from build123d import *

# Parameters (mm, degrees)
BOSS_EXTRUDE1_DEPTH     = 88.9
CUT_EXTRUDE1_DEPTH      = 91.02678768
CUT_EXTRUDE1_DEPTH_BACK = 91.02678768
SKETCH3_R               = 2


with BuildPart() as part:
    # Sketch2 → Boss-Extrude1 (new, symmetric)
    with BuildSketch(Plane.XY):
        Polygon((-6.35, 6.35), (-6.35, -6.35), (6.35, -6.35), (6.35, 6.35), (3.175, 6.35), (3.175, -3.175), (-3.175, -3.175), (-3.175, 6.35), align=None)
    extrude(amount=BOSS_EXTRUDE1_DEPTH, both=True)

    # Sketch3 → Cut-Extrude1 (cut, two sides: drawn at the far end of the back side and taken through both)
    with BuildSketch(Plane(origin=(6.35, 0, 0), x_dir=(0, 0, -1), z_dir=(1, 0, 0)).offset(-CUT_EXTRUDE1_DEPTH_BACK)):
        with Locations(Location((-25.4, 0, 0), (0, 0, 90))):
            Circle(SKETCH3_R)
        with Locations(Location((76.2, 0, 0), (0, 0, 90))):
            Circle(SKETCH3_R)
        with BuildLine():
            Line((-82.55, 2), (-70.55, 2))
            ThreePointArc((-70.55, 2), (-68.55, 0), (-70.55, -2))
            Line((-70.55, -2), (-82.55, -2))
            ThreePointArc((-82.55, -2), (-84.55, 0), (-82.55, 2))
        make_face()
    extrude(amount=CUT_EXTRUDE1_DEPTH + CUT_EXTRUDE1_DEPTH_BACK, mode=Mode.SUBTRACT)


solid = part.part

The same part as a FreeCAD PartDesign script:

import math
import FreeCAD as App
import Part
import Sketcher
Q = App.Units.Quantity


def add_polygon(sketch, points):
    """Adds a closed chain of lines whose ends are joined by coincident constraints."""
    first, n = sketch.GeometryCount, len(points)
    for a, b in zip(points, points[1:] + points[:1]):
        sketch.addGeometry(Part.LineSegment(App.Vector(*a, 0), App.Vector(*b, 0)), False)
    for i in range(n):
        sketch.addConstraint(Sketcher.Constraint("Coincident", first + i, 2, first + (i + 1) % n, 1))

doc = App.newDocument("Part")
params = doc.addObject("Spreadsheet::Sheet", "Params")
for row, (alias, value) in enumerate([
    ("sketch1_width", "0.5 in"),
    ("sketch1_width2", "0.25 in"),
    ("sketch1_height", "0.375 in"),
    ("pad1_length", "7 in"),
], start=1):
    params.set(f"A{row}", alias)
    params.set(f"B{row}", "=" + value)
    params.setAlias(f"B{row}", alias)

body = doc.addObject("PartDesign::Body", "Body")

# Sketch on XY plane
sketch1 = body.newObject("Sketcher::SketchObject", "Sketch")
sketch1.AttachmentSupport = (doc.getObject("XY_Plane"), [""])
sketch1.MapMode = "FlatFace"
add_polygon(sketch1, [(-6.35, 6.35), (-6.35, -6.35), (6.35, -6.35), (6.35, 6.35), (3.175, 6.35), (3.175, -3.175), (-3.175, -3.175), (-3.175, 6.35)])  # lines 0-7
sketch1.addConstraint(Sketcher.Constraint("Vertical", 0))
sketch1.addConstraint(Sketcher.Constraint("Horizontal", 1))
sketch1.addConstraint(Sketcher.Constraint("Vertical", 2))
sketch1.addConstraint(Sketcher.Constraint("Horizontal", 3))
sketch1.addConstraint(Sketcher.Constraint("Vertical", 4))
sketch1.addConstraint(Sketcher.Constraint("Horizontal", 5))
sketch1.addConstraint(Sketcher.Constraint("Vertical", 6))
sketch1.addConstraint(Sketcher.Constraint("Horizontal", 7))
sketch1.addConstraint(Sketcher.Constraint("Symmetric", 0, 2, 2, 2, -1, 1))
sketch1.addConstraint(Sketcher.Constraint("Symmetric", 3, 2, 6, 2, -2))
sketch1.addConstraint(Sketcher.Constraint("Equal", 1, 0))
sketch1.addConstraint(Sketcher.Constraint("DistanceX", 1, 1, 1, 2, Q("0.5 in")))
sketch1.addConstraint(Sketcher.Constraint("DistanceX", 5, 2, 5, 1, Q("0.25 in")))
sketch1.addConstraint(Sketcher.Constraint("DistanceY", 4, 2, 4, 1, Q("0.375 in")))
sketch1.setExpression("Constraints[19]", "Params.sketch1_width")
sketch1.setExpression("Constraints[20]", "Params.sketch1_width2")
sketch1.setExpression("Constraints[21]", "Params.sketch1_height")
pad1 = body.newObject("PartDesign::Pad", "Pad")
pad1.Profile = sketch1
pad1.setExpression("Length", "Params.pad1_length")
pad1.Midplane = True

# Sketch on YZ plane
sketch2 = body.newObject("Sketcher::SketchObject", "Sketch001")
sketch2.AttachmentSupport = (doc.getObject("YZ_Plane"), [""])
sketch2.MapMode = "FlatFace"
sketch2.AttachmentOffset = App.Placement(App.Vector(0, 0, 0.25 * 25.4), App.Rotation())
sketch2.addGeometry(Part.Circle(App.Vector(0, 25.4, 0), App.Vector(0, 0, 1), 2), False)
sketch2.addGeometry(Part.Circle(App.Vector(0, -76.2, 0), App.Vector(0, 0, 1), 2), False)
sketch2.addGeometry(Part.LineSegment(App.Vector(2, 70.55, 0), App.Vector(2, 82.55, 0)), False)
sketch2.addGeometry(Part.ArcOfCircle(Part.Circle(App.Vector(0, 82.55, 0), App.Vector(0, 0, 1), 2), math.radians(0), math.radians(180)), False)
sketch2.addGeometry(Part.LineSegment(App.Vector(-2, 82.55, 0), App.Vector(-2, 70.55, 0)), False)
sketch2.addGeometry(Part.ArcOfCircle(Part.Circle(App.Vector(0, 70.55, 0), App.Vector(0, 0, 1), 2), math.radians(180), math.radians(360)), False)
sketch2.addConstraint(Sketcher.Constraint("Tangent", 2, 2, 3, 1))
sketch2.addConstraint(Sketcher.Constraint("Tangent", 3, 2, 4, 1))
sketch2.addConstraint(Sketcher.Constraint("Tangent", 4, 2, 5, 1))
sketch2.addConstraint(Sketcher.Constraint("Tangent", 5, 2, 2, 1))
sketch2.addConstraint(Sketcher.Constraint("Vertical", 2))
sketch2.addConstraint(Sketcher.Constraint("Vertical", 4))
sketch2.addConstraint(Sketcher.Constraint("Equal", 0, 1))
sketch2.addConstraint(Sketcher.Constraint("Equal", 1, 3))
sketch2.addConstraint(Sketcher.Constraint("PointOnObject", 0, 3, -2))
sketch2.addConstraint(Sketcher.Constraint("PointOnObject", 1, 3, -2))
sketch2.addConstraint(Sketcher.Constraint("PointOnObject", 3, 3, -2))
sketch2.addConstraint(Sketcher.Constraint("DistanceY", -1, 1, 0, 3, Q("1 in")))
sketch2.addConstraint(Sketcher.Constraint("DistanceY", 1, 3, -1, 1, Q("3 in")))
sketch2.addConstraint(Sketcher.Constraint("Diameter", 0, 4.0))
sketch2.addConstraint(Sketcher.Constraint("DistanceY", -1, 1, 3, 3, Q("3.25 in")))
sketch2.addConstraint(Sketcher.Constraint("DistanceY", 2, 1, 2, 2, 12.0))
pocket1 = body.newObject("PartDesign::Pocket", "Pocket")
pocket1.Profile = sketch2
pocket1.Type = "ThroughAll"
pocket1.Midplane = True

doc.recompute()
